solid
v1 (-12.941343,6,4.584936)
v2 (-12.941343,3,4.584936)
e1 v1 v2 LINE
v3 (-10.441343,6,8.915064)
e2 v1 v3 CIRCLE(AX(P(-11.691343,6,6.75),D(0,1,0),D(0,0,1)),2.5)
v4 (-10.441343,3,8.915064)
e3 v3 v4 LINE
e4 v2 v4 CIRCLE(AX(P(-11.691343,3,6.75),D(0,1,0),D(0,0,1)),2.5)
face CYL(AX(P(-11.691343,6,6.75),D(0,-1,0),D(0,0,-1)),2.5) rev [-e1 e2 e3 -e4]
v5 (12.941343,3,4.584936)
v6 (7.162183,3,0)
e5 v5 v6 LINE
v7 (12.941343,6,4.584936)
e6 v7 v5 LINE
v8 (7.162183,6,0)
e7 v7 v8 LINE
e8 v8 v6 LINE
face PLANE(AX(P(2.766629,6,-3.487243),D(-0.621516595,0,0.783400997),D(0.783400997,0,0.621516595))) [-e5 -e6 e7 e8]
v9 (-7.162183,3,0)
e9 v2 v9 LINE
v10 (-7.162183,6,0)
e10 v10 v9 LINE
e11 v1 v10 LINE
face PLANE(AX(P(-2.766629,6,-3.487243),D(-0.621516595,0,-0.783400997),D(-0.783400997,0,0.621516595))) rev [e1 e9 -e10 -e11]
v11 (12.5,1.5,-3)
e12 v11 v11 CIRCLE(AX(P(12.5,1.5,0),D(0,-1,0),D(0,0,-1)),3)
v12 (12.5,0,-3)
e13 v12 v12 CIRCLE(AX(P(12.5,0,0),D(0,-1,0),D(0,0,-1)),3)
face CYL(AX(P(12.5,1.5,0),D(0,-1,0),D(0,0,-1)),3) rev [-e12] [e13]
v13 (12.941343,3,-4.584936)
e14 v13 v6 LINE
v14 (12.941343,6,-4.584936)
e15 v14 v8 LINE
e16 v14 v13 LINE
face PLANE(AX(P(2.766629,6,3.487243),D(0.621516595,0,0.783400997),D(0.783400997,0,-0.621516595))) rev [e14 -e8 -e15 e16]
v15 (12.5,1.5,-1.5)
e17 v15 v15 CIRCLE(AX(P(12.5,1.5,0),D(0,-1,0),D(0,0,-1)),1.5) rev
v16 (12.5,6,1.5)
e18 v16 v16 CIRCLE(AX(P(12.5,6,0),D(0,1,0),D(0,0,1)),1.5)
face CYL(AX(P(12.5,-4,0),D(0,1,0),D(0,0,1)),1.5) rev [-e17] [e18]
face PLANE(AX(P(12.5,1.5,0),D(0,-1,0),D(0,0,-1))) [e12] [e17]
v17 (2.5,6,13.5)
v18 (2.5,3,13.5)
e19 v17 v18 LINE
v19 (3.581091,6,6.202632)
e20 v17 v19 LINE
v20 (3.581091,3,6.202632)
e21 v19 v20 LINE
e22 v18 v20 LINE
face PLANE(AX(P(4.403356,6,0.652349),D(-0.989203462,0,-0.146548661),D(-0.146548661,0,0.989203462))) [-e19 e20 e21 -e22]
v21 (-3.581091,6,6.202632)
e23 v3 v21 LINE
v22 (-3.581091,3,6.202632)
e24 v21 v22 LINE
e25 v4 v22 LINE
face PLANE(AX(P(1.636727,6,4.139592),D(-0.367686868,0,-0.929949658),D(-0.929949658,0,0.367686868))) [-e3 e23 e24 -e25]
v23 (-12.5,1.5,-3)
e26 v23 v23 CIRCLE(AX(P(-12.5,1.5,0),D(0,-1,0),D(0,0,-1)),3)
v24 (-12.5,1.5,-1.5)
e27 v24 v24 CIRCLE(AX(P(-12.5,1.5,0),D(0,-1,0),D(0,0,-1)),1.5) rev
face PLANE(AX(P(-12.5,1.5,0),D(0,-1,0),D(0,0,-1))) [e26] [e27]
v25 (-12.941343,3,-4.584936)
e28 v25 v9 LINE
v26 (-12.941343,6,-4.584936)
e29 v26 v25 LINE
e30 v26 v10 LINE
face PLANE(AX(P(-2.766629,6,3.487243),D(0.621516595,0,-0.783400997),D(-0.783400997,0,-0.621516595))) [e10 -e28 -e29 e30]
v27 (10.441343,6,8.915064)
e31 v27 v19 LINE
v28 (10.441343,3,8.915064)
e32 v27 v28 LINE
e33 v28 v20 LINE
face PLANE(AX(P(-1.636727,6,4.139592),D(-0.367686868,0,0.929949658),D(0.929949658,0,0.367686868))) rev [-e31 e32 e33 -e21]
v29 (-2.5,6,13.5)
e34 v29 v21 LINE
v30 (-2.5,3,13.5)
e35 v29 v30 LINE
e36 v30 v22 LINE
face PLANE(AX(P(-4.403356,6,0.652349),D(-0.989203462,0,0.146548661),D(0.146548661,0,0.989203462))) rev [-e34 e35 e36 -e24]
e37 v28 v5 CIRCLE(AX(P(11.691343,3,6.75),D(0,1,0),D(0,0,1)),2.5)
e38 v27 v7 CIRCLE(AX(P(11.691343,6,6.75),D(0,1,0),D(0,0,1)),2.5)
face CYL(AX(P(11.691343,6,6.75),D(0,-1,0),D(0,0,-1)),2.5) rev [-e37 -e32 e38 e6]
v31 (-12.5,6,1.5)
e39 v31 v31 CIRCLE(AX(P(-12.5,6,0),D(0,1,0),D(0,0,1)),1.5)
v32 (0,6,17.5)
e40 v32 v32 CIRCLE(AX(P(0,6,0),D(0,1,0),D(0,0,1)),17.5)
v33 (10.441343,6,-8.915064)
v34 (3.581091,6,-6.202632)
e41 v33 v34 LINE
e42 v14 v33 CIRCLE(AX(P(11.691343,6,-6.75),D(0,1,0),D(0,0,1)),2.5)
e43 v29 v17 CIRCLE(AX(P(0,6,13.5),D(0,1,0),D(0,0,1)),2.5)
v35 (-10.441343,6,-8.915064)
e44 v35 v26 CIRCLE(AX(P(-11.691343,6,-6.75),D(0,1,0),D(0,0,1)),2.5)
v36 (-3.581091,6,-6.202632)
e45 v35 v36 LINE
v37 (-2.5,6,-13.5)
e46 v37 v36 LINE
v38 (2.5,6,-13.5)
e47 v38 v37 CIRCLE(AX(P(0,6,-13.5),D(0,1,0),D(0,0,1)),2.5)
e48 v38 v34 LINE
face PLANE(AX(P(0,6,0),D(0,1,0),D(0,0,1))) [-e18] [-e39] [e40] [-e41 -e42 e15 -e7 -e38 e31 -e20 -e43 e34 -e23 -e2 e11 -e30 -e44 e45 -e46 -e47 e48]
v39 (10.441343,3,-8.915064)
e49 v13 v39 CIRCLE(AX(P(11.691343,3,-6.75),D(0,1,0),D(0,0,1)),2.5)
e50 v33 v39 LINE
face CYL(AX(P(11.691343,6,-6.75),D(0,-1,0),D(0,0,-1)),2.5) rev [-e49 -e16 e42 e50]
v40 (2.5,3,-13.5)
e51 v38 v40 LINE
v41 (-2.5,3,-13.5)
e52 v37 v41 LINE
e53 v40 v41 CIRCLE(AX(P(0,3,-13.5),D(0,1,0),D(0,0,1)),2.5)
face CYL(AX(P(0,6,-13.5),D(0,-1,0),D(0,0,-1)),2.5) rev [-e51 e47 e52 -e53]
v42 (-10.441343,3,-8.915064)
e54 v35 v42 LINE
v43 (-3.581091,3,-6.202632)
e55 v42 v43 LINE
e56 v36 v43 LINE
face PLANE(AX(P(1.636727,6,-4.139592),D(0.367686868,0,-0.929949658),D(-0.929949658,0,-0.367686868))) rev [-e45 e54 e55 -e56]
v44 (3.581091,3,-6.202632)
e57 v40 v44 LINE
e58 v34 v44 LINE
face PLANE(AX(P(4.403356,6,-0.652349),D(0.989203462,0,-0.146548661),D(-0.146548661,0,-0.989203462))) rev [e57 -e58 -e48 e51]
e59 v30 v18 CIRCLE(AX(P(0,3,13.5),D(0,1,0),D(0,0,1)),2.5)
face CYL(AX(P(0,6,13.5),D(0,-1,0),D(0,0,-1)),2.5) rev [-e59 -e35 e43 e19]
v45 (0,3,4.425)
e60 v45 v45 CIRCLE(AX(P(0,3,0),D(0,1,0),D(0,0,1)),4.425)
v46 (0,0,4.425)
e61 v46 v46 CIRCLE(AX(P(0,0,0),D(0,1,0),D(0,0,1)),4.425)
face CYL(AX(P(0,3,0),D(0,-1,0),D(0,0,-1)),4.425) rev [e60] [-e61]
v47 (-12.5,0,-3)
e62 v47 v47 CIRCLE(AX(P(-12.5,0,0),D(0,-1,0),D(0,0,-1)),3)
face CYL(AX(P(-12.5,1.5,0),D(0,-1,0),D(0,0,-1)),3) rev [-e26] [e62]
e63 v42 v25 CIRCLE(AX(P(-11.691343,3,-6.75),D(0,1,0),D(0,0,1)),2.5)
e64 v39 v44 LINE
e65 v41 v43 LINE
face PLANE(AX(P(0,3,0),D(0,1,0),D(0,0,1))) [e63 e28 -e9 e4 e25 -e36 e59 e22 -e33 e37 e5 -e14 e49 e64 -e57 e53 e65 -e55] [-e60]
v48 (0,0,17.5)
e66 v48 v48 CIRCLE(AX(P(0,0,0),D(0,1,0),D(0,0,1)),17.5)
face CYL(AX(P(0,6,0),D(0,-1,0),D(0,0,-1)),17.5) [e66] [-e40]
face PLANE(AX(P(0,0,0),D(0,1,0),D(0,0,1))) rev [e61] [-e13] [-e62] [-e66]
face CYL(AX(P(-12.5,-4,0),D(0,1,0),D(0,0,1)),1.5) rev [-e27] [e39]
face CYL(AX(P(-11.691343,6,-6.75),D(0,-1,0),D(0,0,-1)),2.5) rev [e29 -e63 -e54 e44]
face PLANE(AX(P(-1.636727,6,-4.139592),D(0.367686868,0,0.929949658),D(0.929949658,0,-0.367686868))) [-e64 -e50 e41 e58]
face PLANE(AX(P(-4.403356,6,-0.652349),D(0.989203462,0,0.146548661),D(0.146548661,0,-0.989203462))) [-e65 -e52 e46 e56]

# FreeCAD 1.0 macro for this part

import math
import FreeCAD as App
import Part
import Sketcher

V = App.Vector

doc = App.newDocument("Part")
body = doc.addObject("PartDesign::Body", "Body")

sketch1 = body.newObject("Sketcher::SketchObject", "Sketch")
sketch1.AttachmentSupport = (doc.getObject("XZ_Plane"), [""])
sketch1.MapMode = "FlatFace"
sketch1.addGeometry([
    Part.Circle(V(0, 0, 0), V(0, 0, 1), 17.5),
    Part.LineSegment(V(-3.6, -6.2, 0), V(-2.5, -13.5, 0)),
    Part.ArcOfCircle(Part.Circle(V(0, -13.5, 0), V(0, 0, 1), 2.5), math.radians(180), math.radians(270)),
    Part.ArcOfCircle(Part.Circle(V(0, -13.5, 0), V(0, 0, 1), 2.5), math.radians(-90), math.radians(0)),
    Part.LineSegment(V(2.5, -13.5, 0), V(3.6, -6.2, 0)),
    Part.LineSegment(V(3.6, -6.2, 0), V(10.4, -8.9, 0)),
    Part.ArcOfCircle(Part.Circle(V(11.7, -6.8, 0), V(0, 0, 1), 2.5), math.radians(-120), math.radians(-30)),
    Part.ArcOfCircle(Part.Circle(V(11.7, -6.8, 0), V(0, 0, 1), 2.5), math.radians(-30), math.radians(0)),
    Part.ArcOfCircle(Part.Circle(V(11.7, -6.7, 0), V(0, 0, 1), 2.5), math.radians(0), math.radians(60)),
    Part.LineSegment(V(12.9, -4.6, 0), V(7.2, 0, 0)),
    Part.LineSegment(V(7.2, 0, 0), V(12.9, 4.6, 0)),
    Part.ArcOfCircle(Part.Circle(V(11.7, 6.7, 0), V(0, 0, 1), 2.5), math.radians(-60), math.radians(0)),
    Part.ArcOfCircle(Part.Circle(V(11.7, 6.8, 0), V(0, 0, 1), 2.5), math.radians(0), math.radians(30)),
    Part.ArcOfCircle(Part.Circle(V(11.7, 6.8, 0), V(0, 0, 1), 2.5), math.radians(30), math.radians(120)),
    Part.LineSegment(V(10.4, 8.9, 0), V(3.6, 6.2, 0)),
    Part.LineSegment(V(3.6, 6.2, 0), V(2.5, 13.5, 0)),
    Part.ArcOfCircle(Part.Circle(V(0, 13.5, 0), V(0, 0, 1), 2.5), math.radians(0), math.radians(90)),
    Part.ArcOfCircle(Part.Circle(V(0, 13.5, 0), V(0, 0, 1), 2.5), math.radians(90), math.radians(180)),
    Part.LineSegment(V(-2.5, 13.5, 0), V(-3.6, 6.2, 0)),
    Part.LineSegment(V(-3.6, 6.2, 0), V(-10.4, 8.9, 0)),
    Part.ArcOfCircle(Part.Circle(V(-11.7, 6.8, 0), V(0, 0, 1), 2.5), math.radians(60), math.radians(150)),
    Part.ArcOfCircle(Part.Circle(V(-11.7, 6.8, 0), V(0, 0, 1), 2.5), math.radians(150), math.radians(240)),
    Part.LineSegment(V(-12.9, 4.6, 0), V(-7.2, 0, 0)),
    Part.LineSegment(V(-7.2, 0, 0), V(-12.9, -4.6, 0)),
    Part.ArcOfCircle(Part.Circle(V(-11.7, -6.8, 0), V(0, 0, 1), 2.5), math.radians(120), math.radians(210)),
    Part.ArcOfCircle(Part.Circle(V(-11.7, -6.8, 0), V(0, 0, 1), 2.5), math.radians(-150), math.radians(-60)),
    Part.LineSegment(V(-10.4, -8.9, 0), V(-3.6, -6.2, 0)),
], False)
sketch1.addConstraint([
    Sketcher.Constraint("Coincident", 1, 2, 2, 1),
    Sketcher.Constraint("Tangent", 2, 2, 3, 1),
    Sketcher.Constraint("Coincident", 3, 2, 4, 1),
    Sketcher.Constraint("Coincident", 4, 2, 5, 1),
    Sketcher.Constraint("Coincident", 5, 2, 6, 1),
    Sketcher.Constraint("Tangent", 6, 2, 7, 1),
    Sketcher.Constraint("Tangent", 7, 2, 8, 1),
    Sketcher.Constraint("Coincident", 8, 2, 9, 1),
    Sketcher.Constraint("Coincident", 9, 2, 10, 1),
    Sketcher.Constraint("Coincident", 10, 2, 11, 1),
    Sketcher.Constraint("Tangent", 11, 2, 12, 1),
    Sketcher.Constraint("Tangent", 12, 2, 13, 1),
    Sketcher.Constraint("Coincident", 13, 2, 14, 1),
    Sketcher.Constraint("Coincident", 14, 2, 15, 1),
    Sketcher.Constraint("Coincident", 15, 2, 16, 1),
    Sketcher.Constraint("Tangent", 16, 2, 17, 1),
    Sketcher.Constraint("Coincident", 17, 2, 18, 1),
    Sketcher.Constraint("Coincident", 18, 2, 19, 1),
    Sketcher.Constraint("Coincident", 19, 2, 20, 1),
    Sketcher.Constraint("Tangent", 20, 2, 21, 1),
    Sketcher.Constraint("Coincident", 21, 2, 22, 1),
    Sketcher.Constraint("Coincident", 22, 2, 23, 1),
    Sketcher.Constraint("Coincident", 23, 2, 24, 1),
    Sketcher.Constraint("Tangent", 24, 2, 25, 1),
    Sketcher.Constraint("Coincident", 25, 2, 26, 1),
    Sketcher.Constraint("Coincident", 26, 2, 1, 1),
    Sketcher.Constraint("Coincident", 0, 3, -1, 1),
    Sketcher.Constraint("Coincident", 8, 3, 6, 3),
    Sketcher.Constraint("Coincident", 13, 3, 11, 3),
    Sketcher.Constraint("Equal", 2, 3),
    Sketcher.Constraint("Equal", 3, 6),
    Sketcher.Constraint("Equal", 8, 11),
    Sketcher.Constraint("Equal", 13, 16),
    Sketcher.Constraint("Equal", 16, 17),
    Sketcher.Constraint("Equal", 17, 20),
    Sketcher.Constraint("Equal", 20, 21),
    Sketcher.Constraint("Equal", 21, 24),
    Sketcher.Constraint("Equal", 24, 25),
    Sketcher.Constraint("Symmetric", 2, 3, 16, 3, -1, 1),
    Sketcher.Constraint("Symmetric", 6, 3, 20, 3, -1, 1),
    Sketcher.Constraint("Symmetric", 11, 3, 24, 3, -1, 1),
    Sketcher.Constraint("Symmetric", 4, 2, 18, 2, -1, 1),
    Sketcher.Constraint("Symmetric", 9, 2, 22, 2, -1, 1),
    Sketcher.Constraint("Symmetric", 14, 2, 26, 2, -1, 1),
    Sketcher.Constraint("Symmetric", 11, 3, 20, 3, -2),
    Sketcher.Constraint("Symmetric", 1, 2, 3, 2, -2),
    Sketcher.Constraint("Symmetric", 14, 2, 18, 2, -2),
    Sketcher.Constraint("PointOnObject", 2, 2, -2),
    Sketcher.Constraint("PointOnObject", 9, 2, -1),
    Sketcher.Constraint("PointOnObject", 16, 2, -2),
    Sketcher.Constraint("Parallel", 1, 15),
    Sketcher.Constraint("Parallel", 4, 18),
    Sketcher.Constraint("Parallel", 5, 19),
    Sketcher.Constraint("Parallel", 9, 22),
    Sketcher.Constraint("Parallel", 10, 23),
    Sketcher.Constraint("Parallel", 14, 26),
    Sketcher.Constraint("Horizontal", 3, 3, 1, 2),
    Sketcher.Constraint("Horizontal", 25, 3, 7, 2),
    Sketcher.Constraint("Horizontal", 21, 3, 11, 2),
    Sketcher.Constraint("Horizontal", 13, 2, 19, 2),
    Sketcher.Constraint("Horizontal", 12, 2, 20, 2),
    Sketcher.Constraint("Horizontal", 10, 2, 21, 2),
    Sketcher.Constraint("Horizontal", 6, 2, 24, 2),
    Sketcher.Constraint("Vertical", 6, 2, 12, 2),
    Sketcher.Constraint("Equal", 4, 5),
    Sketcher.Constraint("Equal", 5, 9),
    Sketcher.Constraint("Diameter", 0, 35.0),
    Sketcher.Constraint("Radius", 2, 2.5),
    Sketcher.Constraint("DistanceY", 2, 2, -1, 1, 16.0),
    Sketcher.Constraint("DistanceY", 6, 2, -1, 1, 8.0),
    Sketcher.Constraint("DistanceY", 8, 3, 11, 3, 13.5),
    Sketcher.Constraint("DistanceX", 21, 2, 19, 2, 2.5),
    Sketcher.Constraint("DistanceX", 5, 2, 6, 3, 1.25),
    Sketcher.Constraint("DistanceX", -1, 1, 4, 2, 3.581091),
    Sketcher.Constraint("DistanceX", 4, 2, 6, 3, 8.110251),
])
pad1 = body.newObject("PartDesign::Pad", "Pad")
pad1.Profile = sketch1
pad1.Length = 6
pad1.Reversed = True

sketch2 = body.newObject("Sketcher::SketchObject", "Sketch001")
sketch2.AttachmentSupport = (doc.getObject("XZ_Plane"), [""])
sketch2.MapMode = "FlatFace"
sketch2.addGeometry([
    Part.LineSegment(V(-7.2, 0, 0), V(-12.9, 4.6, 0)),
    Part.ArcOfCircle(Part.Circle(V(-11.7, 6.8, 0), V(0, 0, 1), 2.5), math.radians(150), math.radians(240)),
    Part.ArcOfCircle(Part.Circle(V(-11.7, 6.8, 0), V(0, 0, 1), 2.5), math.radians(60), math.radians(150)),
    Part.LineSegment(V(-10.4, 8.9, 0), V(-3.6, 6.2, 0)),
    Part.LineSegment(V(-3.6, 6.2, 0), V(-2.5, 13.5, 0)),
    Part.ArcOfCircle(Part.Circle(V(0, 13.5, 0), V(0, 0, 1), 2.5), math.radians(90), math.radians(180)),
    Part.ArcOfCircle(Part.Circle(V(0, 13.5, 0), V(0, 0, 1), 2.5), math.radians(0), math.radians(90)),
    Part.LineSegment(V(2.5, 13.5, 0), V(3.6, 6.2, 0)),
    Part.LineSegment(V(3.6, 6.2, 0), V(10.4, 8.9, 0)),
    Part.ArcOfCircle(Part.Circle(V(11.7, 6.8, 0), V(0, 0, 1), 2.5), math.radians(30), math.radians(120)),
    Part.ArcOfCircle(Part.Circle(V(11.7, 6.8, 0), V(0, 0, 1), 2.5), math.radians(0), math.radians(30)),
    Part.ArcOfCircle(Part.Circle(V(11.7, 6.7, 0), V(0, 0, 1), 2.5), math.radians(-60), math.radians(0)),
    Part.LineSegment(V(12.9, 4.6, 0), V(7.2, 0, 0)),
    Part.LineSegment(V(7.2, 0, 0), V(12.9, -4.6, 0)),
    Part.ArcOfCircle(Part.Circle(V(11.7, -6.7, 0), V(0, 0, 1), 2.5), math.radians(0), math.radians(60)),
    Part.ArcOfCircle(Part.Circle(V(11.7, -6.8, 0), V(0, 0, 1), 2.5), math.radians(-30), math.radians(0)),
    Part.ArcOfCircle(Part.Circle(V(11.7, -6.8, 0), V(0, 0, 1), 2.5), math.radians(-120), math.radians(-30)),
    Part.LineSegment(V(10.4, -8.9, 0), V(3.6, -6.2, 0)),
    Part.LineSegment(V(3.6, -6.2, 0), V(2.5, -13.5, 0)),
    Part.ArcOfCircle(Part.Circle(V(0, -13.5, 0), V(0, 0, 1), 2.5), math.radians(-90), math.radians(0)),
    Part.ArcOfCircle(Part.Circle(V(0, -13.5, 0), V(0, 0, 1), 2.5), math.radians(180), math.radians(270)),
    Part.LineSegment(V(-2.5, -13.5, 0), V(-3.6, -6.2, 0)),
    Part.LineSegment(V(-3.6, -6.2, 0), V(-10.4, -8.9, 0)),
    Part.ArcOfCircle(Part.Circle(V(-11.7, -6.8, 0), V(0, 0, 1), 2.5), math.radians(-150), math.radians(-60)),
    Part.ArcOfCircle(Part.Circle(V(-11.7, -6.8, 0), V(0, 0, 1), 2.5), math.radians(120), math.radians(210)),
    Part.LineSegment(V(-12.9, -4.6, 0), V(-7.2, 0, 0)),
    Part.ArcOfCircle(Part.Circle(V(0, 0, 0), V(0, 0, 1), 4.4), math.radians(-30), math.radians(0)),
    Part.ArcOfCircle(Part.Circle(V(0, 0, 0), V(0, 0, 1), 4.4), math.radians(0), math.radians(30)),
    Part.ArcOfCircle(Part.Circle(V(0, 0, 0), V(0, 0, 1), 4.4), math.radians(30), math.radians(90)),
    Part.ArcOfCircle(Part.Circle(V(0, 0, 0), V(0, 0, 1), 4.4), math.radians(90), math.radians(150)),
    Part.ArcOfCircle(Part.Circle(V(0, 0, 0), V(0, 0, 1), 4.4), math.radians(150), math.radians(210)),
    Part.ArcOfCircle(Part.Circle(V(0, 0, 0), V(0, 0, 1), 4.4), math.radians(-150), math.radians(-90)),
    Part.ArcOfCircle(Part.Circle(V(0, 0, 0), V(0, 0, 1), 4.4), math.radians(-90), math.radians(-30)),
], False)
sketch2.addConstraint([
    Sketcher.Constraint("Coincident", 0, 2, 1, 2),
    Sketcher.Constraint("Tangent", 1, 1, 2, 2),
    Sketcher.Constraint("Coincident", 2, 1, 3, 1),
    Sketcher.Constraint("Coincident", 3, 2, 4, 1),
    Sketcher.Constraint("Coincident", 4, 2, 5, 2),
    Sketcher.Constraint("Tangent", 5, 1, 6, 2),
    Sketcher.Constraint("Coincident", 6, 1, 7, 1),
    Sketcher.Constraint("Coincident", 7, 2, 8, 1),
    Sketcher.Constraint("Coincident", 8, 2, 9, 2),
    Sketcher.Constraint("Tangent", 9, 1, 10, 2),
    Sketcher.Constraint("Tangent", 10, 1, 11, 2),
    Sketcher.Constraint("Coincident", 11, 1, 12, 1),
    Sketcher.Constraint("Coincident", 12, 2, 13, 1),
    Sketcher.Constraint("Coincident", 13, 2, 14, 2),
    Sketcher.Constraint("Tangent", 14, 1, 15, 2),
    Sketcher.Constraint("Tangent", 15, 1, 16, 2),
    Sketcher.Constraint("Coincident", 16, 1, 17, 1),
    Sketcher.Constraint("Coincident", 17, 2, 18, 1),
    Sketcher.Constraint("Coincident", 18, 2, 19, 2),
    Sketcher.Constraint("Tangent", 19, 1, 20, 2),
    Sketcher.Constraint("Coincident", 20, 1, 21, 1),
    Sketcher.Constraint("Coincident", 21, 2, 22, 1),
    Sketcher.Constraint("Coincident", 22, 2, 23, 2),
    Sketcher.Constraint("Tangent", 23, 1, 24, 2),
    Sketcher.Constraint("Coincident", 24, 1, 25, 1),
    Sketcher.Constraint("Coincident", 25, 2, 0, 1),
    Sketcher.Constraint("Tangent", 26, 2, 27, 1),
    Sketcher.Constraint("Tangent", 27, 2, 28, 1),
    Sketcher.Constraint("Tangent", 28, 2, 29, 1),
    Sketcher.Constraint("Tangent", 29, 2, 30, 1),
    Sketcher.Constraint("Tangent", 30, 2, 31, 1),
    Sketcher.Constraint("Tangent", 31, 2, 32, 1),
    Sketcher.Constraint("Tangent", 32, 2, 26, 1),
    Sketcher.Constraint("Coincident", 26, 3, -1, 1),
    Sketcher.Constraint("Coincident", 28, 3, -1, 1),
    Sketcher.Constraint("Coincident", 30, 3, -1, 1),
    Sketcher.Constraint("Coincident", 11, 3, 9, 3),
    Sketcher.Constraint("Coincident", 16, 3, 14, 3),
    Sketcher.Constraint("Equal", 1, 2),
    Sketcher.Constraint("Equal", 2, 5),
    Sketcher.Constraint("Equal", 5, 6),
    Sketcher.Constraint("Equal", 6, 9),
    Sketcher.Constraint("Equal", 11, 14),
    Sketcher.Constraint("Equal", 16, 19),
    Sketcher.Constraint("Equal", 19, 20),
    Sketcher.Constraint("Equal", 20, 23),
    Sketcher.Constraint("Equal", 23, 24),
    Sketcher.Constraint("Symmetric", 1, 3, 14, 3, -1, 1),
    Sketcher.Constraint("Symmetric", 5, 3, 19, 3, -1, 1),
    Sketcher.Constraint("Symmetric", 9, 3, 23, 3, -1, 1),
    Sketcher.Constraint("Symmetric", 3, 2, 17, 2, -1, 1),
    Sketcher.Constraint("Symmetric", 7, 2, 21, 2, -1, 1),
    Sketcher.Constraint("Symmetric", 12, 2, 25, 2, -1, 1),
    Sketcher.Constraint("Symmetric", 1, 3, 9, 3, -2),
    Sketcher.Constraint("Symmetric", 4, 2, 6, 1, -2),
    Sketcher.Constraint("Symmetric", 3, 2, 7, 2, -2),
    Sketcher.Constraint("PointOnObject", 5, 1, -2),
    Sketcher.Constraint("PointOnObject", 12, 2, -1),
    Sketcher.Constraint("PointOnObject", 19, 1, -2),
    Sketcher.Constraint("PointOnObject", 26, 2, -1),
    Sketcher.Constraint("PointOnObject", 28, 2, -2),
    Sketcher.Constraint("PointOnObject", 31, 2, -2),
    Sketcher.Constraint("Parallel", 0, 13),
    Sketcher.Constraint("Parallel", 3, 17),
    Sketcher.Constraint("Parallel", 4, 18),
    Sketcher.Constraint("Parallel", 7, 21),
    Sketcher.Constraint("Parallel", 8, 22),
    Sketcher.Constraint("Parallel", 12, 25),
    Sketcher.Constraint("Horizontal", 6, 3, 4, 2),
    Sketcher.Constraint("Horizontal", 2, 1, 8, 2),
    Sketcher.Constraint("Horizontal", 1, 1, 9, 1),
    Sketcher.Constraint("Horizontal", 11, 3, 10, 1),
    Sketcher.Constraint("Horizontal", 0, 2, 11, 1),
    Sketcher.Constraint("Horizontal", 24, 3, 14, 1),
    Sketcher.Constraint("Horizontal", 15, 1, 23, 1),
    Sketcher.Constraint("Horizontal", 27, 2, 29, 2),
    Sketcher.Constraint("Horizontal", 30, 2, 32, 2),
    Sketcher.Constraint("Vertical", 9, 1, 15, 1),
    Sketcher.Constraint("Vertical", 29, 2, 30, 2),
    Sketcher.Constraint("Equal", 0, 3),
    Sketcher.Constraint("Equal", 3, 4),
    Sketcher.Constraint("Radius", 1, 2.5),
    Sketcher.Constraint("DistanceY", -1, 1, 1, 1, 8.0),
    Sketcher.Constraint("DistanceY", -1, 1, 5, 1, 16.0),
    Sketcher.Constraint("Radius", 26, 4.425),
    Sketcher.Constraint("DistanceY", 14, 3, 11, 3, 13.5),
    Sketcher.Constraint("DistanceX", 0, 2, 2, 1, 2.5),
    Sketcher.Constraint("DistanceX", 0, 2, 1, 3, 1.25),
    Sketcher.Constraint("DistanceY", -1, 1, 27, 2, 2.2125),
    Sketcher.Constraint("DistanceX", 3, 2, -1, 1, 3.581091),
    Sketcher.Constraint("DistanceX", 7, 2, 8, 2, 6.860251),
])
pad2 = body.newObject("PartDesign::Pad", "Pad001")
pad2.Profile = sketch2
pad2.Length = 3
pad2.Reversed = True

sketch3 = body.newObject("Sketcher::SketchObject", "Sketch002")
sketch3.AttachmentSupport = (doc.getObject("XZ_Plane"), [""])
sketch3.MapMode = "FlatFace"
sketch3.AttachmentOffset = App.Placement(V(0, 0, -6), App.Rotation())
sketch3.addGeometry([
    Part.Circle(V(-12.5, 0, 0), V(0, 0, 1), 1.5),
    Part.Circle(V(12.5, 0, 0), V(0, 0, 1), 1.5),
], False)
sketch3.addConstraint([
    Sketcher.Constraint("Equal", 0, 1),
    Sketcher.Constraint("Symmetric", 0, 3, 1, 3, -1, 1),
    Sketcher.Constraint("PointOnObject", 0, 3, -1),
    Sketcher.Constraint("Diameter", 0, 3.0),
    Sketcher.Constraint("DistanceX", 0, 3, 1, 3, 25.0),
])
pocket1 = body.newObject("PartDesign::Pocket", "Pocket")
pocket1.Profile = sketch3
pocket1.Length = 10
pocket1.Reversed = True

sketch4 = body.newObject("Sketcher::SketchObject", "Sketch003")
sketch4.AttachmentSupport = (doc.getObject("XZ_Plane"), [""])
sketch4.MapMode = "FlatFace"
sketch4.addGeometry([
    Part.Circle(V(-12.5, 0, 0), V(0, 0, 1), 3),
    Part.Circle(V(12.5, 0, 0), V(0, 0, 1), 3),
], False)
sketch4.addConstraint([
    Sketcher.Constraint("Equal", 0, 1),
    Sketcher.Constraint("Symmetric", 0, 3, 1, 3, -1, 1),
    Sketcher.Constraint("PointOnObject", 0, 3, -1),
    Sketcher.Constraint("Diameter", 0, 6.0),
    Sketcher.Constraint("DistanceX", 0, 3, 1, 3, 25.0),
])
pocket2 = body.newObject("PartDesign::Pocket", "Pocket001")
pocket2.Profile = sketch4
pocket2.Length = 1.5

doc.recompute()
